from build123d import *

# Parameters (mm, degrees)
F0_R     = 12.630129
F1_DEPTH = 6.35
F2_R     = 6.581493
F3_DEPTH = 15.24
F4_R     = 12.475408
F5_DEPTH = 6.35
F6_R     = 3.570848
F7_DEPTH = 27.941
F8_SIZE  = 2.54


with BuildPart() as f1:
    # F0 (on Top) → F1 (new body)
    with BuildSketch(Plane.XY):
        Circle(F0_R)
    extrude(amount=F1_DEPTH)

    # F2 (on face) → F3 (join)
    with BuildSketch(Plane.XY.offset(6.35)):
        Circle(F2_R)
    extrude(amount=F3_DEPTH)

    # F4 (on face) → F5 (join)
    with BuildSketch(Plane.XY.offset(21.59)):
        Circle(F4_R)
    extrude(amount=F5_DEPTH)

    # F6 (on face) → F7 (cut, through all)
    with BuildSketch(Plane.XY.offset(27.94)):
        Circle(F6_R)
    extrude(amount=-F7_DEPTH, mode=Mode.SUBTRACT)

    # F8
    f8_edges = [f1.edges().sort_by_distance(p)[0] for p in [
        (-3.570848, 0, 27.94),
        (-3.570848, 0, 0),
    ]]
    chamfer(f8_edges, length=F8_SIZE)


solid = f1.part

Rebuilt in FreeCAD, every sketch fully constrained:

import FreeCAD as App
import Part
import Sketcher
from FreeCAD import Vector
Q = App.Units.Quantity


def edges_at(feature, points):
    """Names of the edges that pass closest to the given points."""
    edges = feature.Shape.Edges
    near = lambda p: min(range(len(edges)), key=lambda i: edges[i].distToShape(Part.Vertex(*p))[0])
    return sorted({f"Edge{near(p) + 1}" for p in points})

doc = App.newDocument("Part")
body = doc.addObject("PartDesign::Body", "Body")

sketch1 = body.newObject("Sketcher::SketchObject", "Sketch")
sketch1.AttachmentSupport = (doc.getObject("XY_Plane"), [""])
sketch1.MapMode = "FlatFace"
sketch1.addGeometry(Part.Circle(Vector(0, 0, 0), Vector(0, 0, 1), 12.630129), False)
sketch1.addConstraint(Sketcher.Constraint("Coincident", 0, 3, -1, 1))
sketch1.addConstraint(Sketcher.Constraint("Diameter", 0, 25.260258))
pad1 = body.newObject("PartDesign::Pad", "Pad")
pad1.Profile = sketch1
pad1.Length = Q("0.25 in")

sketch2 = body.newObject("Sketcher::SketchObject", "Sketch001")
sketch2.AttachmentSupport = (doc.getObject("XY_Plane"), [""])
sketch2.MapMode = "FlatFace"
sketch2.AttachmentOffset = App.Placement(Vector(0, 0, 0.25 * 25.4), App.Rotation())
sketch2.addGeometry(Part.Circle(Vector(0, 0, 0), Vector(0, 0, 1), 6.581493), False)
sketch2.addConstraint(Sketcher.Constraint("Coincident", 0, 3, -1, 1))
sketch2.addConstraint(Sketcher.Constraint("Diameter", 0, 13.162986))
pad2 = body.newObject("PartDesign::Pad", "Pad001")
pad2.Profile = sketch2
pad2.Length = Q("0.6 in")

sketch3 = body.newObject("Sketcher::SketchObject", "Sketch002")
sketch3.AttachmentSupport = (doc.getObject("XY_Plane"), [""])
sketch3.MapMode = "FlatFace"
sketch3.AttachmentOffset = App.Placement(Vector(0, 0, 0.85 * 25.4), App.Rotation())
sketch3.addGeometry(Part.Circle(Vector(0, 0, 0), Vector(0, 0, 1), 12.475408), False)
sketch3.addConstraint(Sketcher.Constraint("Coincident", 0, 3, -1, 1))
sketch3.addConstraint(Sketcher.Constraint("Diameter", 0, 24.950816))
pad3 = body.newObject("PartDesign::Pad", "Pad002")
pad3.Profile = sketch3
pad3.Length = Q("0.25 in")

sketch4 = body.newObject("Sketcher::SketchObject", "Sketch003")
sketch4.AttachmentSupport = (doc.getObject("XY_Plane"), [""])
sketch4.MapMode = "FlatFace"
sketch4.AttachmentOffset = App.Placement(Vector(0, 0, 1.1 * 25.4), App.Rotation())
sketch4.addGeometry(Part.Circle(Vector(0, 0, 0), Vector(0, 0, 1), 3.570848), False)
sketch4.addConstraint(Sketcher.Constraint("Coincident", 0, 3, -1, 1))
sketch4.addConstraint(Sketcher.Constraint("Diameter", 0, 7.141696))
pocket1 = body.newObject("PartDesign::Pocket", "Pocket")
pocket1.Profile = sketch4
pocket1.Type = "ThroughAll"
doc.recompute()

chamfer = body.newObject("PartDesign::Chamfer", "Chamfer")
chamfer.Base = (pocket1, edges_at(pocket1, [(-3.571, 0, 27.94), (-3.571, 0, 0)]))
chamfer.Size = Q("0.1 in")

doc.recompute()
